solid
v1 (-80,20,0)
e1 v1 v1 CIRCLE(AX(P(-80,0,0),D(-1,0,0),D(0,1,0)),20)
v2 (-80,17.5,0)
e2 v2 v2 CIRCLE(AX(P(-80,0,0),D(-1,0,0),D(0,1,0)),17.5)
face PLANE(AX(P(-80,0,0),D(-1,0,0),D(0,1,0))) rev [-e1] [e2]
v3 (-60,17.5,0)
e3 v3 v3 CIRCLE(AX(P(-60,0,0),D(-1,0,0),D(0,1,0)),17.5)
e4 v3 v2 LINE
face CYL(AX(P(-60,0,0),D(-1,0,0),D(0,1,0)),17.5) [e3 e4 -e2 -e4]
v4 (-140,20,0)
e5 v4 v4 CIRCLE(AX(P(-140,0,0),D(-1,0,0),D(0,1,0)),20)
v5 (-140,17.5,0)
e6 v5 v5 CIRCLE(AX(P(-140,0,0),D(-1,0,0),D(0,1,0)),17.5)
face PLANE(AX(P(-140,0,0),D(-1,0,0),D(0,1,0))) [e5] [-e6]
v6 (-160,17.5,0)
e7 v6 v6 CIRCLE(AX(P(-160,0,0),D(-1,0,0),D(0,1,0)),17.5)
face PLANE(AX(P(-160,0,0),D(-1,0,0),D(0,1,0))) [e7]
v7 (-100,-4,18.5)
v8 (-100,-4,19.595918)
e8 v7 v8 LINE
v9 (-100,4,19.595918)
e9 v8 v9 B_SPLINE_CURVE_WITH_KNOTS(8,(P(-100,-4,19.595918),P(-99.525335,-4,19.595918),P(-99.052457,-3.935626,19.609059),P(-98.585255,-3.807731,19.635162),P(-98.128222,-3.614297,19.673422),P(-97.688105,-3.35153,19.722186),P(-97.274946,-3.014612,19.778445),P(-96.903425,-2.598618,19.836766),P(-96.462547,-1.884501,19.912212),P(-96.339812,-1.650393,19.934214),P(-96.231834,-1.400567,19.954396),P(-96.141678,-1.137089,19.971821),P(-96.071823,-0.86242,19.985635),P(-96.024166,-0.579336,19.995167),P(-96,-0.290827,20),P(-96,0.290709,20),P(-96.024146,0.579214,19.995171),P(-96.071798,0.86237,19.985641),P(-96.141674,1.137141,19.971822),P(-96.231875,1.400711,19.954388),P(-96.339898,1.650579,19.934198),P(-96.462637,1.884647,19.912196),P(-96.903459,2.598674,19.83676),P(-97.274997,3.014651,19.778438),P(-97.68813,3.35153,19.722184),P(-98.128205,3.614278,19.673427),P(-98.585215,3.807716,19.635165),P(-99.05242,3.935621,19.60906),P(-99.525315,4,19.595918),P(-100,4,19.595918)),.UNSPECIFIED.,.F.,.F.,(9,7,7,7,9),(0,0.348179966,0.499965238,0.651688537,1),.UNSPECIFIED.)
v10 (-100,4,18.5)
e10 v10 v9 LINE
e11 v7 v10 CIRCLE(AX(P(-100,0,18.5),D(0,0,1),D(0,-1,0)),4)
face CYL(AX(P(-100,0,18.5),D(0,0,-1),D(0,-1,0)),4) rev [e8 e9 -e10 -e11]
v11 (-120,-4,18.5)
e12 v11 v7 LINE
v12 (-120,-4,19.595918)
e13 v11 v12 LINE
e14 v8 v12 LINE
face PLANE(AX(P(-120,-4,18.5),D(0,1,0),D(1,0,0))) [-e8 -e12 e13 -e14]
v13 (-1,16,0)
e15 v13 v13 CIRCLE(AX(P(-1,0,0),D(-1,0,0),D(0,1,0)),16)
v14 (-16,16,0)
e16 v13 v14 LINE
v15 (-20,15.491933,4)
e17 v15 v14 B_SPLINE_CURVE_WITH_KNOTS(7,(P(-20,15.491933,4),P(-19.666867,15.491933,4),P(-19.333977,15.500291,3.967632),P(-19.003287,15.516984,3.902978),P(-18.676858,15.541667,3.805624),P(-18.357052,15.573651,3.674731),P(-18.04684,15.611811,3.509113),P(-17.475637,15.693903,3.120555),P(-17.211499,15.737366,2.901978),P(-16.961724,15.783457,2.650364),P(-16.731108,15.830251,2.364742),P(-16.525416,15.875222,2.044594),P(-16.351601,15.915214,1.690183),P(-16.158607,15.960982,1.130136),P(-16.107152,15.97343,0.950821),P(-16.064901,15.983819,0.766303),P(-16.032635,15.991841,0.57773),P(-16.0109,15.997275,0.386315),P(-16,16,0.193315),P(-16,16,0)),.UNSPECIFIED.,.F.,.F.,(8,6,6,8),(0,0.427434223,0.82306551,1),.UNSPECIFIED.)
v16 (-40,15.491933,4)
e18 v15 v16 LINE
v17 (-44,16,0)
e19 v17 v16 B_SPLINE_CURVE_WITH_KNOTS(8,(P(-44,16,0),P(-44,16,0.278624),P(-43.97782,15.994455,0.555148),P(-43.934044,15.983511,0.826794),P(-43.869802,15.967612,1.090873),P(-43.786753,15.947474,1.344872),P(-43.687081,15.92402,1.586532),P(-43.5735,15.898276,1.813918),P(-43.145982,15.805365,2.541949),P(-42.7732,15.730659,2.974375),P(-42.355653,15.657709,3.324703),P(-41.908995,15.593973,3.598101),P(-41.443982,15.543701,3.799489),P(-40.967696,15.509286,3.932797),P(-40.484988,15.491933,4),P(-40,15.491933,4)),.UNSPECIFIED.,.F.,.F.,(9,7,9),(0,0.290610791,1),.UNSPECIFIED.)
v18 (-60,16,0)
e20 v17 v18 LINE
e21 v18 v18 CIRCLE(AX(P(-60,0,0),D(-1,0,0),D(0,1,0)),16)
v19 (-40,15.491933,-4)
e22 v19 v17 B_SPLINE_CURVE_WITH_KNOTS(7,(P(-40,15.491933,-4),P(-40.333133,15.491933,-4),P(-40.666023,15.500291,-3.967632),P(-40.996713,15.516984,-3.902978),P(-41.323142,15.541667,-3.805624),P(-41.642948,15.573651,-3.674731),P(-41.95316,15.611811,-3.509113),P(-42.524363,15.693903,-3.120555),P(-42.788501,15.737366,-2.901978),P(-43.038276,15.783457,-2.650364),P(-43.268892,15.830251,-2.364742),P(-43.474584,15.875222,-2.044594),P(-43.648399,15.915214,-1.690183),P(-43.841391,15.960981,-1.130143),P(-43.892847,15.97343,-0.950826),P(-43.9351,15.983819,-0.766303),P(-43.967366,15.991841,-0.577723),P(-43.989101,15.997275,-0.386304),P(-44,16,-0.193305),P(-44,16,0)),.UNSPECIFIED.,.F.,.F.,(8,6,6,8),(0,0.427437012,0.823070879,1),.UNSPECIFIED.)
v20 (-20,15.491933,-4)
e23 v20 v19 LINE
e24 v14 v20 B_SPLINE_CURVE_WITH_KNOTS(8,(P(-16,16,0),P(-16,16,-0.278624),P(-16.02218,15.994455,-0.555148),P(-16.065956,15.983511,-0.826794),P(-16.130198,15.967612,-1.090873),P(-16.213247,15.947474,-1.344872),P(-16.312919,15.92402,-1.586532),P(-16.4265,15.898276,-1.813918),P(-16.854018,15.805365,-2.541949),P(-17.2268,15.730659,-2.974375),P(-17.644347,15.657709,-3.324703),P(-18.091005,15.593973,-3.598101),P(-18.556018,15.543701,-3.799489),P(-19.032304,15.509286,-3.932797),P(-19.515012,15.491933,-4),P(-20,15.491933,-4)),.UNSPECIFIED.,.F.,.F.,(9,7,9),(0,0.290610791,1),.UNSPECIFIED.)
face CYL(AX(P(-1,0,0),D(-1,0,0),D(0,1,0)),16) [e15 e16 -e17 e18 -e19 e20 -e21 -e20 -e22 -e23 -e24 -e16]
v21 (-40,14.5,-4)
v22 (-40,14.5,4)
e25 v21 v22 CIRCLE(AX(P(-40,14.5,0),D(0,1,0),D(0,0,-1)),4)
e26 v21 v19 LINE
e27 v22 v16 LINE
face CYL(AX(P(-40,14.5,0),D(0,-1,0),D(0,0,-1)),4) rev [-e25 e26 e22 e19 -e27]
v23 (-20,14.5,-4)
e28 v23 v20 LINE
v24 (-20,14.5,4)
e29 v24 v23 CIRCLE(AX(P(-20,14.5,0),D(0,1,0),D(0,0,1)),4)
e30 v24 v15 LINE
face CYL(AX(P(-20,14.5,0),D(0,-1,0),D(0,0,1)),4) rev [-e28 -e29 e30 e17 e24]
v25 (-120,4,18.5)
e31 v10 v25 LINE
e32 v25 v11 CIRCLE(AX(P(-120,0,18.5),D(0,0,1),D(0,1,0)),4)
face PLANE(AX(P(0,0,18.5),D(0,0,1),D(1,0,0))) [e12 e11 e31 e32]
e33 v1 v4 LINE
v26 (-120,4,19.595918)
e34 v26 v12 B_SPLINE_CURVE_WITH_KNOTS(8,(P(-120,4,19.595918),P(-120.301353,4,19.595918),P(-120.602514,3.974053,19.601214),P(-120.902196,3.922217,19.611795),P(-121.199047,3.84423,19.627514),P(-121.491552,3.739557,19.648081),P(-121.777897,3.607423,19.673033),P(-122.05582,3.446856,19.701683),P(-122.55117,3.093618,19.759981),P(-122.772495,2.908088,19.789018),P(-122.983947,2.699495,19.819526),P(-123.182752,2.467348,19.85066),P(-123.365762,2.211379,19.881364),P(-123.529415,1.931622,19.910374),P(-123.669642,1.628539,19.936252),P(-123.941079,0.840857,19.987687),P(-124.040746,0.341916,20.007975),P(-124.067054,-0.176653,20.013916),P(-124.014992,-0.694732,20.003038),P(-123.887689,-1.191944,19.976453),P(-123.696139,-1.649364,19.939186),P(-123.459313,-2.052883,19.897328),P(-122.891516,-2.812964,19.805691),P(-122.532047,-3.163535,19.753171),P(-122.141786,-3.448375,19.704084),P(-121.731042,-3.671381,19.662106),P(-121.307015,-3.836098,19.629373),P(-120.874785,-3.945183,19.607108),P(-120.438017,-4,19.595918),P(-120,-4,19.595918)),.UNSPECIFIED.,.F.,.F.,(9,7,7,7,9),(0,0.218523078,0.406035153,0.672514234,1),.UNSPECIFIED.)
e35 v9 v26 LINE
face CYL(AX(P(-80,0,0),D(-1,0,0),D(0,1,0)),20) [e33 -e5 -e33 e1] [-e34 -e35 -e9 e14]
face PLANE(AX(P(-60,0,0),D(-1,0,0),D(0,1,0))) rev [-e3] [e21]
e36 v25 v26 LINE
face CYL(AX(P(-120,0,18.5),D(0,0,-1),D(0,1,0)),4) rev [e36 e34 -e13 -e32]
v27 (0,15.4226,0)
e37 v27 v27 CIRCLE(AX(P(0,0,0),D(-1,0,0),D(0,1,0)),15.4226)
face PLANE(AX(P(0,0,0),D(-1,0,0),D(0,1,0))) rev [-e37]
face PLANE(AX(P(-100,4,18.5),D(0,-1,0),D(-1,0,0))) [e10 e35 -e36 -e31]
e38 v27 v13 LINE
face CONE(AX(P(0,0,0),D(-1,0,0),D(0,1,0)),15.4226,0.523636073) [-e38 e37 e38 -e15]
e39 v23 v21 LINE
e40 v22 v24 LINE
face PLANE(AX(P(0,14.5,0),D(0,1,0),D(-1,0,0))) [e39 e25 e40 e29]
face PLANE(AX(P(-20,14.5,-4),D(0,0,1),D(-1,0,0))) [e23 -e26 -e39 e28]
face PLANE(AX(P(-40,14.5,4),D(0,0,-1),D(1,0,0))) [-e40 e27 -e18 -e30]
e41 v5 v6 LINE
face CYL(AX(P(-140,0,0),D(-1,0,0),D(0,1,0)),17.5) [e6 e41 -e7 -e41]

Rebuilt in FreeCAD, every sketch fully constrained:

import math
import FreeCAD as App
import Part
import Sketcher
from FreeCAD import Vector

doc = App.newDocument("Part")
params = doc.addObject("Spreadsheet::Sheet", "Params")
for row, (alias, value) in enumerate([
    ("sketch1_width", "160 mm"),
    ("sketch1_width2", "20 mm"),
    ("sketch1_width3", "60 mm"),
    ("sketch1_height", "1.5 mm"),
    ("sketch1_height2", "2.5 mm"),
    ("revolution_angle", "360 deg"),
    ("sketch2_radius", "4 mm"),
    ("sketch2_width", "20 mm"),
    ("sketch3_radius", "4 mm"),
    ("sketch3_width", "20 mm"),
], start=1):
    params.set(f"A{row}", alias)
    params.set(f"B{row}", "=" + value)
    params.setAlias(f"B{row}", alias)

body = doc.addObject("PartDesign::Body", "Body")

# Sketch on XY plane
sketch1 = body.newObject("Sketcher::SketchObject", "Sketch")
sketch1.AttachmentSupport = (doc.getObject("XY_Plane"), [""])
sketch1.MapMode = "FlatFace"
sketch1.addGeometry(Part.LineSegment(Vector(-160, 0, 0), Vector(0, 0, 0)), False)
sketch1.addGeometry(Part.LineSegment(Vector(0, 0, 0), Vector(0, 15.4226, 0)), False)
sketch1.addGeometry(Part.LineSegment(Vector(0, 15.4226, 0), Vector(-1, 16, 0)), False)
sketch1.addGeometry(Part.LineSegment(Vector(-1, 16, 0), Vector(-60, 16, 0)), False)
sketch1.addGeometry(Part.LineSegment(Vector(-60, 16, 0), Vector(-60, 17.5, 0)), False)
sketch1.addGeometry(Part.LineSegment(Vector(-60, 17.5, 0), Vector(-80, 17.5, 0)), False)
sketch1.addGeometry(Part.LineSegment(Vector(-80, 17.5, 0), Vector(-80, 20, 0)), False)
sketch1.addGeometry(Part.LineSegment(Vector(-80, 20, 0), Vector(-140, 20, 0)), False)
sketch1.addGeometry(Part.LineSegment(Vector(-140, 20, 0), Vector(-140, 17.5, 0)), False)
sketch1.addGeometry(Part.LineSegment(Vector(-140, 17.5, 0), Vector(-160, 17.5, 0)), False)
sketch1.addGeometry(Part.LineSegment(Vector(-160, 17.5, 0), Vector(-160, 0, 0)), False)
sketch1.addConstraint(Sketcher.Constraint("Coincident", 0, 2, 1, 1))
sketch1.addConstraint(Sketcher.Constraint("Coincident", 1, 2, 2, 1))
sketch1.addConstraint(Sketcher.Constraint("Coincident", 2, 2, 3, 1))
sketch1.addConstraint(Sketcher.Constraint("Coincident", 3, 2, 4, 1))
sketch1.addConstraint(Sketcher.Constraint("Coincident", 4, 2, 5, 1))
sketch1.addConstraint(Sketcher.Constraint("Coincident", 5, 2, 6, 1))
sketch1.addConstraint(Sketcher.Constraint("Coincident", 6, 2, 7, 1))
sketch1.addConstraint(Sketcher.Constraint("Coincident", 7, 2, 8, 1))
sketch1.addConstraint(Sketcher.Constraint("Coincident", 8, 2, 9, 1))
sketch1.addConstraint(Sketcher.Constraint("Coincident", 9, 2, 10, 1))
sketch1.addConstraint(Sketcher.Constraint("Coincident", 10, 2, 0, 1))
sketch1.addConstraint(Sketcher.Constraint("Horizontal", 0))
sketch1.addConstraint(Sketcher.Constraint("Vertical", 1))
sketch1.addConstraint(Sketcher.Constraint("Horizontal", 3))
sketch1.addConstraint(Sketcher.Constraint("Vertical", 4))
sketch1.addConstraint(Sketcher.Constraint("Horizontal", 5))
sketch1.addConstraint(Sketcher.Constraint("Vertical", 6))
sketch1.addConstraint(Sketcher.Constraint("Horizontal", 7))
sketch1.addConstraint(Sketcher.Constraint("Vertical", 8))
sketch1.addConstraint(Sketcher.Constraint("Horizontal", 9))
sketch1.addConstraint(Sketcher.Constraint("Vertical", 10))
sketch1.addConstraint(Sketcher.Constraint("Coincident", 0, 2, -1, 1))
sketch1.addConstraint(Sketcher.Constraint("Horizontal", 5, 2, 8, 2))
sketch1.addConstraint(Sketcher.Constraint("Equal", 5, 9))
sketch1.addConstraint(Sketcher.Constraint("DistanceX", 0, 1, 0, 2, 160.0))
sketch1.addConstraint(Sketcher.Constraint("DistanceX", 5, 2, 5, 1, 20.0))
sketch1.addConstraint(Sketcher.Constraint("DistanceX", 7, 2, 7, 1, 60.0))
sketch1.addConstraint(Sketcher.Constraint("DistanceX", 2, 2, -1, 1, 1.0))
sketch1.addConstraint(Sketcher.Constraint("DistanceY", -1, 1, 6, 2, 20.0))
sketch1.addConstraint(Sketcher.Constraint("DistanceY", 4, 1, 4, 2, 1.5))
sketch1.addConstraint(Sketcher.Constraint("DistanceY", 6, 1, 6, 2, 2.5))
sketch1.addConstraint(Sketcher.Constraint("DistanceY", 1, 1, 1, 2, 15.4226))
sketch1.setExpression("Constraints[24]", "Params.sketch1_width")
sketch1.setExpression("Constraints[25]", "Params.sketch1_width2")
sketch1.setExpression("Constraints[26]", "Params.sketch1_width3")
sketch1.setExpression("Constraints[29]", "Params.sketch1_height")
sketch1.setExpression("Constraints[30]", "Params.sketch1_height2")
revolution = body.newObject("PartDesign::Revolution", "Revolution")
revolution.Profile = sketch1
revolution.ReferenceAxis = (sketch1, ["H_Axis"])
revolution.setExpression("Angle", "Params.revolution_angle")

# Sketch on XZ plane
sketch2 = body.newObject("Sketcher::SketchObject", "Sketch001")
sketch2.AttachmentSupport = (doc.getObject("XZ_Plane"), [""])
sketch2.MapMode = "FlatFace"
sketch2.AttachmentOffset = App.Placement(Vector(0, 0, -14.5), App.Rotation())
sketch2.addGeometry(Part.ArcOfCircle(Part.Circle(Vector(-40, 0, 0), Vector(0, 0, 1), 4), math.radians(90), math.radians(270)), False)
sketch2.addGeometry(Part.LineSegment(Vector(-40, 4, 0), Vector(-20, 4, 0)), False)
sketch2.addGeometry(Part.ArcOfCircle(Part.Circle(Vector(-20, 0, 0), Vector(0, 0, 1), 4), math.radians(-90), math.radians(90)), False)
sketch2.addGeometry(Part.LineSegment(Vector(-20, -4, 0), Vector(-40, -4, 0)), False)
sketch2.addConstraint(Sketcher.Constraint("Tangent", 0, 1, 1, 1))
sketch2.addConstraint(Sketcher.Constraint("Tangent", 1, 2, 2, 2))
sketch2.addConstraint(Sketcher.Constraint("Tangent", 2, 1, 3, 1))
sketch2.addConstraint(Sketcher.Constraint("Tangent", 3, 2, 0, 2))
sketch2.addConstraint(Sketcher.Constraint("Horizontal", 1))
sketch2.addConstraint(Sketcher.Constraint("Horizontal", 3))
sketch2.addConstraint(Sketcher.Constraint("PointOnObject", 0, 3, -1))
sketch2.addConstraint(Sketcher.Constraint("Radius", 0, 4.0))
sketch2.addConstraint(Sketcher.Constraint("DistanceX", 1, 1, 1, 2, 20.0))
sketch2.addConstraint(Sketcher.Constraint("DistanceX", 2, 3, -1, 1, 20.0))
sketch2.setExpression("Constraints[7]", "Params.sketch2_radius")
sketch2.setExpression("Constraints[8]", "Params.sketch2_width")
pocket1 = body.newObject("PartDesign::Pocket", "Pocket")
pocket1.Profile = sketch2
pocket1.Type = "ThroughAll"

# Sketch on XY plane
sketch3 = body.newObject("Sketcher::SketchObject", "Sketch002")
sketch3.AttachmentSupport = (doc.getObject("XY_Plane"), [""])
sketch3.MapMode = "FlatFace"
sketch3.AttachmentOffset = App.Placement(Vector(0, 0, 18.5), App.Rotation())
sketch3.addGeometry(Part.ArcOfCircle(Part.Circle(Vector(-120, 0, 0), Vector(0, 0, 1), 4), math.radians(90), math.radians(270)), False)
sketch3.addGeometry(Part.LineSegment(Vector(-120, -4, 0), Vector(-100, -4, 0)), False)
sketch3.addGeometry(Part.ArcOfCircle(Part.Circle(Vector(-100, 0, 0), Vector(0, 0, 1), 4), math.radians(-90), math.radians(90)), False)
sketch3.addGeometry(Part.LineSegment(Vector(-100, 4, 0), Vector(-120, 4, 0)), False)
sketch3.addConstraint(Sketcher.Constraint("Tangent", 0, 2, 1, 1))
sketch3.addConstraint(Sketcher.Constraint("Tangent", 1, 2, 2, 1))
sketch3.addConstraint(Sketcher.Constraint("Tangent", 2, 2, 3, 1))
sketch3.addConstraint(Sketcher.Constraint("Tangent", 3, 2, 0, 1))
sketch3.addConstraint(Sketcher.Constraint("Horizontal", 1))
sketch3.addConstraint(Sketcher.Constraint("Horizontal", 3))
sketch3.addConstraint(Sketcher.Constraint("PointOnObject", 0, 3, -1))
sketch3.addConstraint(Sketcher.Constraint("Radius", 0, 4.0))
sketch3.addConstraint(Sketcher.Constraint("DistanceX", 1, 1, 1, 2, 20.0))
sketch3.addConstraint(Sketcher.Constraint("DistanceX", 0, 3, -1, 1, 120.0))
sketch3.setExpression("Constraints[7]", "Params.sketch3_radius")
sketch3.setExpression("Constraints[8]", "Params.sketch3_width")
pocket2 = body.newObject("PartDesign::Pocket", "Pocket001")
pocket2.Profile = sketch3
pocket2.Type = "ThroughAll"
pocket2.Reversed = True

doc.recompute()
